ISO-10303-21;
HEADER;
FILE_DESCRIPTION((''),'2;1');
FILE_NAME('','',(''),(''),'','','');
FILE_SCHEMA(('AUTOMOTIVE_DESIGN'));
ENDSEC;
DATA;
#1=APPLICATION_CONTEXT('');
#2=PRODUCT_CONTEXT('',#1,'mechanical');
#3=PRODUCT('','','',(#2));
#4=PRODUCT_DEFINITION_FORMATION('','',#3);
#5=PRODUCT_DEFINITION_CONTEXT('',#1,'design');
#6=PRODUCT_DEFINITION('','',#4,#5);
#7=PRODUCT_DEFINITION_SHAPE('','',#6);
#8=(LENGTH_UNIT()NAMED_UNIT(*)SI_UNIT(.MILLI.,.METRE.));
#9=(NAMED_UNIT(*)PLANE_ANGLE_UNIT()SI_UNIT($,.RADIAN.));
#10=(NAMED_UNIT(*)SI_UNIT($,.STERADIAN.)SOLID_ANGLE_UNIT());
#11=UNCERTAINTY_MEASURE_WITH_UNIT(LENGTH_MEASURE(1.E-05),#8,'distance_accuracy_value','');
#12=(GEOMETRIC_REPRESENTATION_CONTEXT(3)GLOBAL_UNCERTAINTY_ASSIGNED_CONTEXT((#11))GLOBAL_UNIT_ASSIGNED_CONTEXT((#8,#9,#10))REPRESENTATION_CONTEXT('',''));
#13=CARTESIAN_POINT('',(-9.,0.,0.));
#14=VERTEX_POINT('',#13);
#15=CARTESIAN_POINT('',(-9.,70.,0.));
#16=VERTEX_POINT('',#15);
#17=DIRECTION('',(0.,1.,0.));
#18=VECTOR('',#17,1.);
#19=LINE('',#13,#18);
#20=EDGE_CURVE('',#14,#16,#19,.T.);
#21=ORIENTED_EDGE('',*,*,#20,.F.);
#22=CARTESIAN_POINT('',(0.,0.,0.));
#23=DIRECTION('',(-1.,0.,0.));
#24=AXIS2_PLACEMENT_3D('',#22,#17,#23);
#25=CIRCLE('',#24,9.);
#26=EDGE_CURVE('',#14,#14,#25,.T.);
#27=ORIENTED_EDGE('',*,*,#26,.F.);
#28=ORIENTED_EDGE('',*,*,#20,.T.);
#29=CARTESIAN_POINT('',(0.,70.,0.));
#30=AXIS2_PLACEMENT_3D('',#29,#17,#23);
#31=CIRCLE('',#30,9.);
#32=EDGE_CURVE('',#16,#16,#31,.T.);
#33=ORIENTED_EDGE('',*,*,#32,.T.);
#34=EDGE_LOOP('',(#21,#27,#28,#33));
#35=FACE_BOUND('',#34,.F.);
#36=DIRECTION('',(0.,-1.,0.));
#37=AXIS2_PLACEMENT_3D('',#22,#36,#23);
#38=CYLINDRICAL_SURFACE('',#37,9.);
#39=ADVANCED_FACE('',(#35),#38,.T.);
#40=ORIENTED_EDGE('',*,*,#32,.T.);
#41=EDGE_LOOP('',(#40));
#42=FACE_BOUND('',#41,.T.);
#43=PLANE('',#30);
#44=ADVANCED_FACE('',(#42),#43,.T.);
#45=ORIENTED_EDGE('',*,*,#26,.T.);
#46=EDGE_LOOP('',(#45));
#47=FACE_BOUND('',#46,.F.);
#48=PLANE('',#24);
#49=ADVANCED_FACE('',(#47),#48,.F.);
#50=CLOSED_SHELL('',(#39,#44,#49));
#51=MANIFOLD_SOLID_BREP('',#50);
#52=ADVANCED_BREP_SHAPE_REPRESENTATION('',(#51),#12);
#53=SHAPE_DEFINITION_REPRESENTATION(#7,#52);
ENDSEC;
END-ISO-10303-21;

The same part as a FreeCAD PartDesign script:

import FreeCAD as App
import Part
import Sketcher
Q = App.Units.Quantity

doc = App.newDocument("Part")
body = doc.addObject("PartDesign::Body", "Body")

# Sketch on XZ plane
sketch1 = body.newObject("Sketcher::SketchObject", "Sketch")
sketch1.AttachmentSupport = (doc.getObject("XZ_Plane"), [""])
sketch1.MapMode = "FlatFace"
sketch1.addGeometry(Part.Circle(App.Vector(0, 0, 0), App.Vector(0, 0, 1), 9), False)
sketch1.addConstraint(Sketcher.Constraint("Coincident", 0, 3, -1, 1))
sketch1.addConstraint(Sketcher.Constraint("Diameter", 0, Q("18 mm")))
pad1 = body.newObject("PartDesign::Pad", "Pad")
pad1.Profile = sketch1
pad1.Length = 70
pad1.Reversed = True

doc.recompute()
